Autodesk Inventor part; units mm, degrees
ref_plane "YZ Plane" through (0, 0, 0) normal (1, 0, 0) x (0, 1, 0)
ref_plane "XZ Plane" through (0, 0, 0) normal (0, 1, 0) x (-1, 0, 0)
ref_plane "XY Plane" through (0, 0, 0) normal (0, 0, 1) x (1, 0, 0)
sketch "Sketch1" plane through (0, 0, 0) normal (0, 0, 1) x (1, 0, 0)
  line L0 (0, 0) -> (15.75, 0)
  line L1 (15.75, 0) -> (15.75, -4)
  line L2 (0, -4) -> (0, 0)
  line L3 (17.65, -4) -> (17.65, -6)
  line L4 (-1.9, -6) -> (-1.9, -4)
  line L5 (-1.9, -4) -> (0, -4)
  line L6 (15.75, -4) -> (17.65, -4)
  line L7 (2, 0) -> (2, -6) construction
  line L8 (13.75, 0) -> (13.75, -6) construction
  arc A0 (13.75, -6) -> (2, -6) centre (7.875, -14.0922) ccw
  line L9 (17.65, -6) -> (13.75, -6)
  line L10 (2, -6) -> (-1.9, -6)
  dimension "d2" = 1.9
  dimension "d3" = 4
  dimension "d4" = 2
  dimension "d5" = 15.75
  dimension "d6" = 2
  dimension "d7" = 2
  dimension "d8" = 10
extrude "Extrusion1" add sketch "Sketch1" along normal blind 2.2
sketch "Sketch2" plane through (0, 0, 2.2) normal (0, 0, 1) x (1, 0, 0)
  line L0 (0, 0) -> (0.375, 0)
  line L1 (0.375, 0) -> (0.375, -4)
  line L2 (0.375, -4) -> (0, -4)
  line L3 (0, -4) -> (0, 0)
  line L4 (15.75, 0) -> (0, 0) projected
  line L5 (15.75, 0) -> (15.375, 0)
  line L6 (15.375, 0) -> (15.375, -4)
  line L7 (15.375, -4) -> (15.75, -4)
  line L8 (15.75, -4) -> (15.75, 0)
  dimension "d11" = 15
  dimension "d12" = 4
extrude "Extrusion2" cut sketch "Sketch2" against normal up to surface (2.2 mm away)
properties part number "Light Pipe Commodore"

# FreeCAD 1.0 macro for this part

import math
import FreeCAD as App
import Part
import Sketcher
from FreeCAD import Vector


def add_polygon(sketch, points):
    """Adds a closed chain of lines whose ends are joined by coincident constraints."""
    first, n = sketch.GeometryCount, len(points)
    for a, b in zip(points, points[1:] + points[:1]):
        sketch.addGeometry(Part.LineSegment(App.Vector(*a, 0), App.Vector(*b, 0)), False)
    for i in range(n):
        sketch.addConstraint(Sketcher.Constraint("Coincident", first + i, 2, first + (i + 1) % n, 1))

doc = App.newDocument("Part")
body = doc.addObject("PartDesign::Body", "Body")

sketch1 = body.newObject("Sketcher::SketchObject", "Sketch")
sketch1.AttachmentSupport = (doc.getObject("XY_Plane"), [""])
sketch1.MapMode = "FlatFace"
sketch1.addGeometry(Part.LineSegment(Vector(15.8, 0, 0), Vector(0, 0, 0)), False)
sketch1.addGeometry(Part.LineSegment(Vector(0, 0, 0), Vector(0, -4, 0)), False)
sketch1.addGeometry(Part.LineSegment(Vector(0, -4, 0), Vector(-1.9, -4, 0)), False)
sketch1.addGeometry(Part.LineSegment(Vector(-1.9, -4, 0), Vector(-1.9, -6, 0)), False)
sketch1.addGeometry(Part.LineSegment(Vector(-1.9, -6, 0), Vector(2, -6, 0)), False)
sketch1.addGeometry(Part.ArcOfCircle(Part.Circle(Vector(7.9, -14.1, 0), Vector(0, 0, 1), 10), math.radians(54), math.radians(126)), False)
sketch1.addGeometry(Part.LineSegment(Vector(13.8, -6, 0), Vector(17.6, -6, 0)), False)
sketch1.addGeometry(Part.LineSegment(Vector(17.6, -6, 0), Vector(17.6, -4, 0)), False)
sketch1.addGeometry(Part.LineSegment(Vector(17.6, -4, 0), Vector(15.8, -4, 0)), False)
sketch1.addGeometry(Part.LineSegment(Vector(15.8, -4, 0), Vector(15.8, 0, 0)), False)
sketch1.addConstraint(Sketcher.Constraint("Coincident", 0, 2, 1, 1))
sketch1.addConstraint(Sketcher.Constraint("Coincident", 1, 2, 2, 1))
sketch1.addConstraint(Sketcher.Constraint("Coincident", 2, 2, 3, 1))
sketch1.addConstraint(Sketcher.Constraint("Coincident", 3, 2, 4, 1))
sketch1.addConstraint(Sketcher.Constraint("Coincident", 4, 2, 5, 2))
sketch1.addConstraint(Sketcher.Constraint("Coincident", 5, 1, 6, 1))
sketch1.addConstraint(Sketcher.Constraint("Coincident", 6, 2, 7, 1))
sketch1.addConstraint(Sketcher.Constraint("Coincident", 7, 2, 8, 1))
sketch1.addConstraint(Sketcher.Constraint("Coincident", 8, 2, 9, 1))
sketch1.addConstraint(Sketcher.Constraint("Coincident", 9, 2, 0, 1))
sketch1.addConstraint(Sketcher.Constraint("Horizontal", 0))
sketch1.addConstraint(Sketcher.Constraint("Vertical", 1))
sketch1.addConstraint(Sketcher.Constraint("Horizontal", 2))
sketch1.addConstraint(Sketcher.Constraint("Vertical", 3))
sketch1.addConstraint(Sketcher.Constraint("Horizontal", 4))
sketch1.addConstraint(Sketcher.Constraint("Horizontal", 6))
sketch1.addConstraint(Sketcher.Constraint("Vertical", 7))
sketch1.addConstraint(Sketcher.Constraint("Horizontal", 8))
sketch1.addConstraint(Sketcher.Constraint("Vertical", 9))
sketch1.addConstraint(Sketcher.Constraint("Coincident", 0, 2, -1, 1))
sketch1.addConstraint(Sketcher.Constraint("Horizontal", 4, 2, 5, 1))
sketch1.addConstraint(Sketcher.Constraint("Horizontal", 2, 2, 7, 2))
sketch1.addConstraint(Sketcher.Constraint("Equal", 4, 6))
sketch1.addConstraint(Sketcher.Constraint("Equal", 2, 8))
sketch1.addConstraint(Sketcher.Constraint("Radius", 5, 10.0))
sketch1.addConstraint(Sketcher.Constraint("DistanceY", 1, 2, 1, 1, 4.0))
sketch1.addConstraint(Sketcher.Constraint("DistanceY", 3, 2, 3, 1, 2.0))
sketch1.addConstraint(Sketcher.Constraint("DistanceX", 2, 2, 2, 1, 1.9))
sketch1.addConstraint(Sketcher.Constraint("DistanceX", -1, 1, 4, 2, 2.0))
sketch1.addConstraint(Sketcher.Constraint("DistanceX", 0, 2, 0, 1, 15.75))
pad1 = body.newObject("PartDesign::Pad", "Pad")
pad1.Profile = sketch1
pad1.Length = 2.2

sketch2 = body.newObject("Sketcher::SketchObject", "Sketch001")
sketch2.AttachmentSupport = (doc.getObject("XY_Plane"), [""])
sketch2.MapMode = "FlatFace"
sketch2.AttachmentOffset = App.Placement(Vector(0, 0, 2.2), App.Rotation())
add_polygon(sketch2, [(15.75, 0), (15.38, 0), (15.38, -4), (15.75, -4)])
add_polygon(sketch2, [(0.38, 0), (0, 0), (0, -4), (0.38, -4)])
sketch2.addConstraint(Sketcher.Constraint("Horizontal", 0))
sketch2.addConstraint(Sketcher.Constraint("Vertical", 1))
sketch2.addConstraint(Sketcher.Constraint("Horizontal", 2))
sketch2.addConstraint(Sketcher.Constraint("Vertical", 3))
sketch2.addConstraint(Sketcher.Constraint("Horizontal", 4))
sketch2.addConstraint(Sketcher.Constraint("Vertical", 5))
sketch2.addConstraint(Sketcher.Constraint("Horizontal", 6))
sketch2.addConstraint(Sketcher.Constraint("Vertical", 7))
sketch2.addConstraint(Sketcher.Constraint("Coincident", 4, 2, -1, 1))
sketch2.addConstraint(Sketcher.Constraint("PointOnObject", 0, 2, -1))
sketch2.addConstraint(Sketcher.Constraint("Horizontal", 2, 2, 5, 2))
sketch2.addConstraint(Sketcher.Constraint("Equal", 2, 4))
sketch2.addConstraint(Sketcher.Constraint("DistanceY", 1, 2, 1, 1, 4.0))
sketch2.addConstraint(Sketcher.Constraint("DistanceX", 6, 2, 1, 2, 15.0))
sketch2.addConstraint(Sketcher.Constraint("DistanceX", 0, 2, 0, 1, 0.375))
pocket1 = body.newObject("PartDesign::Pocket", "Pocket")
pocket1.Profile = sketch2
pocket1.Length = 2.2

doc.recompute()
